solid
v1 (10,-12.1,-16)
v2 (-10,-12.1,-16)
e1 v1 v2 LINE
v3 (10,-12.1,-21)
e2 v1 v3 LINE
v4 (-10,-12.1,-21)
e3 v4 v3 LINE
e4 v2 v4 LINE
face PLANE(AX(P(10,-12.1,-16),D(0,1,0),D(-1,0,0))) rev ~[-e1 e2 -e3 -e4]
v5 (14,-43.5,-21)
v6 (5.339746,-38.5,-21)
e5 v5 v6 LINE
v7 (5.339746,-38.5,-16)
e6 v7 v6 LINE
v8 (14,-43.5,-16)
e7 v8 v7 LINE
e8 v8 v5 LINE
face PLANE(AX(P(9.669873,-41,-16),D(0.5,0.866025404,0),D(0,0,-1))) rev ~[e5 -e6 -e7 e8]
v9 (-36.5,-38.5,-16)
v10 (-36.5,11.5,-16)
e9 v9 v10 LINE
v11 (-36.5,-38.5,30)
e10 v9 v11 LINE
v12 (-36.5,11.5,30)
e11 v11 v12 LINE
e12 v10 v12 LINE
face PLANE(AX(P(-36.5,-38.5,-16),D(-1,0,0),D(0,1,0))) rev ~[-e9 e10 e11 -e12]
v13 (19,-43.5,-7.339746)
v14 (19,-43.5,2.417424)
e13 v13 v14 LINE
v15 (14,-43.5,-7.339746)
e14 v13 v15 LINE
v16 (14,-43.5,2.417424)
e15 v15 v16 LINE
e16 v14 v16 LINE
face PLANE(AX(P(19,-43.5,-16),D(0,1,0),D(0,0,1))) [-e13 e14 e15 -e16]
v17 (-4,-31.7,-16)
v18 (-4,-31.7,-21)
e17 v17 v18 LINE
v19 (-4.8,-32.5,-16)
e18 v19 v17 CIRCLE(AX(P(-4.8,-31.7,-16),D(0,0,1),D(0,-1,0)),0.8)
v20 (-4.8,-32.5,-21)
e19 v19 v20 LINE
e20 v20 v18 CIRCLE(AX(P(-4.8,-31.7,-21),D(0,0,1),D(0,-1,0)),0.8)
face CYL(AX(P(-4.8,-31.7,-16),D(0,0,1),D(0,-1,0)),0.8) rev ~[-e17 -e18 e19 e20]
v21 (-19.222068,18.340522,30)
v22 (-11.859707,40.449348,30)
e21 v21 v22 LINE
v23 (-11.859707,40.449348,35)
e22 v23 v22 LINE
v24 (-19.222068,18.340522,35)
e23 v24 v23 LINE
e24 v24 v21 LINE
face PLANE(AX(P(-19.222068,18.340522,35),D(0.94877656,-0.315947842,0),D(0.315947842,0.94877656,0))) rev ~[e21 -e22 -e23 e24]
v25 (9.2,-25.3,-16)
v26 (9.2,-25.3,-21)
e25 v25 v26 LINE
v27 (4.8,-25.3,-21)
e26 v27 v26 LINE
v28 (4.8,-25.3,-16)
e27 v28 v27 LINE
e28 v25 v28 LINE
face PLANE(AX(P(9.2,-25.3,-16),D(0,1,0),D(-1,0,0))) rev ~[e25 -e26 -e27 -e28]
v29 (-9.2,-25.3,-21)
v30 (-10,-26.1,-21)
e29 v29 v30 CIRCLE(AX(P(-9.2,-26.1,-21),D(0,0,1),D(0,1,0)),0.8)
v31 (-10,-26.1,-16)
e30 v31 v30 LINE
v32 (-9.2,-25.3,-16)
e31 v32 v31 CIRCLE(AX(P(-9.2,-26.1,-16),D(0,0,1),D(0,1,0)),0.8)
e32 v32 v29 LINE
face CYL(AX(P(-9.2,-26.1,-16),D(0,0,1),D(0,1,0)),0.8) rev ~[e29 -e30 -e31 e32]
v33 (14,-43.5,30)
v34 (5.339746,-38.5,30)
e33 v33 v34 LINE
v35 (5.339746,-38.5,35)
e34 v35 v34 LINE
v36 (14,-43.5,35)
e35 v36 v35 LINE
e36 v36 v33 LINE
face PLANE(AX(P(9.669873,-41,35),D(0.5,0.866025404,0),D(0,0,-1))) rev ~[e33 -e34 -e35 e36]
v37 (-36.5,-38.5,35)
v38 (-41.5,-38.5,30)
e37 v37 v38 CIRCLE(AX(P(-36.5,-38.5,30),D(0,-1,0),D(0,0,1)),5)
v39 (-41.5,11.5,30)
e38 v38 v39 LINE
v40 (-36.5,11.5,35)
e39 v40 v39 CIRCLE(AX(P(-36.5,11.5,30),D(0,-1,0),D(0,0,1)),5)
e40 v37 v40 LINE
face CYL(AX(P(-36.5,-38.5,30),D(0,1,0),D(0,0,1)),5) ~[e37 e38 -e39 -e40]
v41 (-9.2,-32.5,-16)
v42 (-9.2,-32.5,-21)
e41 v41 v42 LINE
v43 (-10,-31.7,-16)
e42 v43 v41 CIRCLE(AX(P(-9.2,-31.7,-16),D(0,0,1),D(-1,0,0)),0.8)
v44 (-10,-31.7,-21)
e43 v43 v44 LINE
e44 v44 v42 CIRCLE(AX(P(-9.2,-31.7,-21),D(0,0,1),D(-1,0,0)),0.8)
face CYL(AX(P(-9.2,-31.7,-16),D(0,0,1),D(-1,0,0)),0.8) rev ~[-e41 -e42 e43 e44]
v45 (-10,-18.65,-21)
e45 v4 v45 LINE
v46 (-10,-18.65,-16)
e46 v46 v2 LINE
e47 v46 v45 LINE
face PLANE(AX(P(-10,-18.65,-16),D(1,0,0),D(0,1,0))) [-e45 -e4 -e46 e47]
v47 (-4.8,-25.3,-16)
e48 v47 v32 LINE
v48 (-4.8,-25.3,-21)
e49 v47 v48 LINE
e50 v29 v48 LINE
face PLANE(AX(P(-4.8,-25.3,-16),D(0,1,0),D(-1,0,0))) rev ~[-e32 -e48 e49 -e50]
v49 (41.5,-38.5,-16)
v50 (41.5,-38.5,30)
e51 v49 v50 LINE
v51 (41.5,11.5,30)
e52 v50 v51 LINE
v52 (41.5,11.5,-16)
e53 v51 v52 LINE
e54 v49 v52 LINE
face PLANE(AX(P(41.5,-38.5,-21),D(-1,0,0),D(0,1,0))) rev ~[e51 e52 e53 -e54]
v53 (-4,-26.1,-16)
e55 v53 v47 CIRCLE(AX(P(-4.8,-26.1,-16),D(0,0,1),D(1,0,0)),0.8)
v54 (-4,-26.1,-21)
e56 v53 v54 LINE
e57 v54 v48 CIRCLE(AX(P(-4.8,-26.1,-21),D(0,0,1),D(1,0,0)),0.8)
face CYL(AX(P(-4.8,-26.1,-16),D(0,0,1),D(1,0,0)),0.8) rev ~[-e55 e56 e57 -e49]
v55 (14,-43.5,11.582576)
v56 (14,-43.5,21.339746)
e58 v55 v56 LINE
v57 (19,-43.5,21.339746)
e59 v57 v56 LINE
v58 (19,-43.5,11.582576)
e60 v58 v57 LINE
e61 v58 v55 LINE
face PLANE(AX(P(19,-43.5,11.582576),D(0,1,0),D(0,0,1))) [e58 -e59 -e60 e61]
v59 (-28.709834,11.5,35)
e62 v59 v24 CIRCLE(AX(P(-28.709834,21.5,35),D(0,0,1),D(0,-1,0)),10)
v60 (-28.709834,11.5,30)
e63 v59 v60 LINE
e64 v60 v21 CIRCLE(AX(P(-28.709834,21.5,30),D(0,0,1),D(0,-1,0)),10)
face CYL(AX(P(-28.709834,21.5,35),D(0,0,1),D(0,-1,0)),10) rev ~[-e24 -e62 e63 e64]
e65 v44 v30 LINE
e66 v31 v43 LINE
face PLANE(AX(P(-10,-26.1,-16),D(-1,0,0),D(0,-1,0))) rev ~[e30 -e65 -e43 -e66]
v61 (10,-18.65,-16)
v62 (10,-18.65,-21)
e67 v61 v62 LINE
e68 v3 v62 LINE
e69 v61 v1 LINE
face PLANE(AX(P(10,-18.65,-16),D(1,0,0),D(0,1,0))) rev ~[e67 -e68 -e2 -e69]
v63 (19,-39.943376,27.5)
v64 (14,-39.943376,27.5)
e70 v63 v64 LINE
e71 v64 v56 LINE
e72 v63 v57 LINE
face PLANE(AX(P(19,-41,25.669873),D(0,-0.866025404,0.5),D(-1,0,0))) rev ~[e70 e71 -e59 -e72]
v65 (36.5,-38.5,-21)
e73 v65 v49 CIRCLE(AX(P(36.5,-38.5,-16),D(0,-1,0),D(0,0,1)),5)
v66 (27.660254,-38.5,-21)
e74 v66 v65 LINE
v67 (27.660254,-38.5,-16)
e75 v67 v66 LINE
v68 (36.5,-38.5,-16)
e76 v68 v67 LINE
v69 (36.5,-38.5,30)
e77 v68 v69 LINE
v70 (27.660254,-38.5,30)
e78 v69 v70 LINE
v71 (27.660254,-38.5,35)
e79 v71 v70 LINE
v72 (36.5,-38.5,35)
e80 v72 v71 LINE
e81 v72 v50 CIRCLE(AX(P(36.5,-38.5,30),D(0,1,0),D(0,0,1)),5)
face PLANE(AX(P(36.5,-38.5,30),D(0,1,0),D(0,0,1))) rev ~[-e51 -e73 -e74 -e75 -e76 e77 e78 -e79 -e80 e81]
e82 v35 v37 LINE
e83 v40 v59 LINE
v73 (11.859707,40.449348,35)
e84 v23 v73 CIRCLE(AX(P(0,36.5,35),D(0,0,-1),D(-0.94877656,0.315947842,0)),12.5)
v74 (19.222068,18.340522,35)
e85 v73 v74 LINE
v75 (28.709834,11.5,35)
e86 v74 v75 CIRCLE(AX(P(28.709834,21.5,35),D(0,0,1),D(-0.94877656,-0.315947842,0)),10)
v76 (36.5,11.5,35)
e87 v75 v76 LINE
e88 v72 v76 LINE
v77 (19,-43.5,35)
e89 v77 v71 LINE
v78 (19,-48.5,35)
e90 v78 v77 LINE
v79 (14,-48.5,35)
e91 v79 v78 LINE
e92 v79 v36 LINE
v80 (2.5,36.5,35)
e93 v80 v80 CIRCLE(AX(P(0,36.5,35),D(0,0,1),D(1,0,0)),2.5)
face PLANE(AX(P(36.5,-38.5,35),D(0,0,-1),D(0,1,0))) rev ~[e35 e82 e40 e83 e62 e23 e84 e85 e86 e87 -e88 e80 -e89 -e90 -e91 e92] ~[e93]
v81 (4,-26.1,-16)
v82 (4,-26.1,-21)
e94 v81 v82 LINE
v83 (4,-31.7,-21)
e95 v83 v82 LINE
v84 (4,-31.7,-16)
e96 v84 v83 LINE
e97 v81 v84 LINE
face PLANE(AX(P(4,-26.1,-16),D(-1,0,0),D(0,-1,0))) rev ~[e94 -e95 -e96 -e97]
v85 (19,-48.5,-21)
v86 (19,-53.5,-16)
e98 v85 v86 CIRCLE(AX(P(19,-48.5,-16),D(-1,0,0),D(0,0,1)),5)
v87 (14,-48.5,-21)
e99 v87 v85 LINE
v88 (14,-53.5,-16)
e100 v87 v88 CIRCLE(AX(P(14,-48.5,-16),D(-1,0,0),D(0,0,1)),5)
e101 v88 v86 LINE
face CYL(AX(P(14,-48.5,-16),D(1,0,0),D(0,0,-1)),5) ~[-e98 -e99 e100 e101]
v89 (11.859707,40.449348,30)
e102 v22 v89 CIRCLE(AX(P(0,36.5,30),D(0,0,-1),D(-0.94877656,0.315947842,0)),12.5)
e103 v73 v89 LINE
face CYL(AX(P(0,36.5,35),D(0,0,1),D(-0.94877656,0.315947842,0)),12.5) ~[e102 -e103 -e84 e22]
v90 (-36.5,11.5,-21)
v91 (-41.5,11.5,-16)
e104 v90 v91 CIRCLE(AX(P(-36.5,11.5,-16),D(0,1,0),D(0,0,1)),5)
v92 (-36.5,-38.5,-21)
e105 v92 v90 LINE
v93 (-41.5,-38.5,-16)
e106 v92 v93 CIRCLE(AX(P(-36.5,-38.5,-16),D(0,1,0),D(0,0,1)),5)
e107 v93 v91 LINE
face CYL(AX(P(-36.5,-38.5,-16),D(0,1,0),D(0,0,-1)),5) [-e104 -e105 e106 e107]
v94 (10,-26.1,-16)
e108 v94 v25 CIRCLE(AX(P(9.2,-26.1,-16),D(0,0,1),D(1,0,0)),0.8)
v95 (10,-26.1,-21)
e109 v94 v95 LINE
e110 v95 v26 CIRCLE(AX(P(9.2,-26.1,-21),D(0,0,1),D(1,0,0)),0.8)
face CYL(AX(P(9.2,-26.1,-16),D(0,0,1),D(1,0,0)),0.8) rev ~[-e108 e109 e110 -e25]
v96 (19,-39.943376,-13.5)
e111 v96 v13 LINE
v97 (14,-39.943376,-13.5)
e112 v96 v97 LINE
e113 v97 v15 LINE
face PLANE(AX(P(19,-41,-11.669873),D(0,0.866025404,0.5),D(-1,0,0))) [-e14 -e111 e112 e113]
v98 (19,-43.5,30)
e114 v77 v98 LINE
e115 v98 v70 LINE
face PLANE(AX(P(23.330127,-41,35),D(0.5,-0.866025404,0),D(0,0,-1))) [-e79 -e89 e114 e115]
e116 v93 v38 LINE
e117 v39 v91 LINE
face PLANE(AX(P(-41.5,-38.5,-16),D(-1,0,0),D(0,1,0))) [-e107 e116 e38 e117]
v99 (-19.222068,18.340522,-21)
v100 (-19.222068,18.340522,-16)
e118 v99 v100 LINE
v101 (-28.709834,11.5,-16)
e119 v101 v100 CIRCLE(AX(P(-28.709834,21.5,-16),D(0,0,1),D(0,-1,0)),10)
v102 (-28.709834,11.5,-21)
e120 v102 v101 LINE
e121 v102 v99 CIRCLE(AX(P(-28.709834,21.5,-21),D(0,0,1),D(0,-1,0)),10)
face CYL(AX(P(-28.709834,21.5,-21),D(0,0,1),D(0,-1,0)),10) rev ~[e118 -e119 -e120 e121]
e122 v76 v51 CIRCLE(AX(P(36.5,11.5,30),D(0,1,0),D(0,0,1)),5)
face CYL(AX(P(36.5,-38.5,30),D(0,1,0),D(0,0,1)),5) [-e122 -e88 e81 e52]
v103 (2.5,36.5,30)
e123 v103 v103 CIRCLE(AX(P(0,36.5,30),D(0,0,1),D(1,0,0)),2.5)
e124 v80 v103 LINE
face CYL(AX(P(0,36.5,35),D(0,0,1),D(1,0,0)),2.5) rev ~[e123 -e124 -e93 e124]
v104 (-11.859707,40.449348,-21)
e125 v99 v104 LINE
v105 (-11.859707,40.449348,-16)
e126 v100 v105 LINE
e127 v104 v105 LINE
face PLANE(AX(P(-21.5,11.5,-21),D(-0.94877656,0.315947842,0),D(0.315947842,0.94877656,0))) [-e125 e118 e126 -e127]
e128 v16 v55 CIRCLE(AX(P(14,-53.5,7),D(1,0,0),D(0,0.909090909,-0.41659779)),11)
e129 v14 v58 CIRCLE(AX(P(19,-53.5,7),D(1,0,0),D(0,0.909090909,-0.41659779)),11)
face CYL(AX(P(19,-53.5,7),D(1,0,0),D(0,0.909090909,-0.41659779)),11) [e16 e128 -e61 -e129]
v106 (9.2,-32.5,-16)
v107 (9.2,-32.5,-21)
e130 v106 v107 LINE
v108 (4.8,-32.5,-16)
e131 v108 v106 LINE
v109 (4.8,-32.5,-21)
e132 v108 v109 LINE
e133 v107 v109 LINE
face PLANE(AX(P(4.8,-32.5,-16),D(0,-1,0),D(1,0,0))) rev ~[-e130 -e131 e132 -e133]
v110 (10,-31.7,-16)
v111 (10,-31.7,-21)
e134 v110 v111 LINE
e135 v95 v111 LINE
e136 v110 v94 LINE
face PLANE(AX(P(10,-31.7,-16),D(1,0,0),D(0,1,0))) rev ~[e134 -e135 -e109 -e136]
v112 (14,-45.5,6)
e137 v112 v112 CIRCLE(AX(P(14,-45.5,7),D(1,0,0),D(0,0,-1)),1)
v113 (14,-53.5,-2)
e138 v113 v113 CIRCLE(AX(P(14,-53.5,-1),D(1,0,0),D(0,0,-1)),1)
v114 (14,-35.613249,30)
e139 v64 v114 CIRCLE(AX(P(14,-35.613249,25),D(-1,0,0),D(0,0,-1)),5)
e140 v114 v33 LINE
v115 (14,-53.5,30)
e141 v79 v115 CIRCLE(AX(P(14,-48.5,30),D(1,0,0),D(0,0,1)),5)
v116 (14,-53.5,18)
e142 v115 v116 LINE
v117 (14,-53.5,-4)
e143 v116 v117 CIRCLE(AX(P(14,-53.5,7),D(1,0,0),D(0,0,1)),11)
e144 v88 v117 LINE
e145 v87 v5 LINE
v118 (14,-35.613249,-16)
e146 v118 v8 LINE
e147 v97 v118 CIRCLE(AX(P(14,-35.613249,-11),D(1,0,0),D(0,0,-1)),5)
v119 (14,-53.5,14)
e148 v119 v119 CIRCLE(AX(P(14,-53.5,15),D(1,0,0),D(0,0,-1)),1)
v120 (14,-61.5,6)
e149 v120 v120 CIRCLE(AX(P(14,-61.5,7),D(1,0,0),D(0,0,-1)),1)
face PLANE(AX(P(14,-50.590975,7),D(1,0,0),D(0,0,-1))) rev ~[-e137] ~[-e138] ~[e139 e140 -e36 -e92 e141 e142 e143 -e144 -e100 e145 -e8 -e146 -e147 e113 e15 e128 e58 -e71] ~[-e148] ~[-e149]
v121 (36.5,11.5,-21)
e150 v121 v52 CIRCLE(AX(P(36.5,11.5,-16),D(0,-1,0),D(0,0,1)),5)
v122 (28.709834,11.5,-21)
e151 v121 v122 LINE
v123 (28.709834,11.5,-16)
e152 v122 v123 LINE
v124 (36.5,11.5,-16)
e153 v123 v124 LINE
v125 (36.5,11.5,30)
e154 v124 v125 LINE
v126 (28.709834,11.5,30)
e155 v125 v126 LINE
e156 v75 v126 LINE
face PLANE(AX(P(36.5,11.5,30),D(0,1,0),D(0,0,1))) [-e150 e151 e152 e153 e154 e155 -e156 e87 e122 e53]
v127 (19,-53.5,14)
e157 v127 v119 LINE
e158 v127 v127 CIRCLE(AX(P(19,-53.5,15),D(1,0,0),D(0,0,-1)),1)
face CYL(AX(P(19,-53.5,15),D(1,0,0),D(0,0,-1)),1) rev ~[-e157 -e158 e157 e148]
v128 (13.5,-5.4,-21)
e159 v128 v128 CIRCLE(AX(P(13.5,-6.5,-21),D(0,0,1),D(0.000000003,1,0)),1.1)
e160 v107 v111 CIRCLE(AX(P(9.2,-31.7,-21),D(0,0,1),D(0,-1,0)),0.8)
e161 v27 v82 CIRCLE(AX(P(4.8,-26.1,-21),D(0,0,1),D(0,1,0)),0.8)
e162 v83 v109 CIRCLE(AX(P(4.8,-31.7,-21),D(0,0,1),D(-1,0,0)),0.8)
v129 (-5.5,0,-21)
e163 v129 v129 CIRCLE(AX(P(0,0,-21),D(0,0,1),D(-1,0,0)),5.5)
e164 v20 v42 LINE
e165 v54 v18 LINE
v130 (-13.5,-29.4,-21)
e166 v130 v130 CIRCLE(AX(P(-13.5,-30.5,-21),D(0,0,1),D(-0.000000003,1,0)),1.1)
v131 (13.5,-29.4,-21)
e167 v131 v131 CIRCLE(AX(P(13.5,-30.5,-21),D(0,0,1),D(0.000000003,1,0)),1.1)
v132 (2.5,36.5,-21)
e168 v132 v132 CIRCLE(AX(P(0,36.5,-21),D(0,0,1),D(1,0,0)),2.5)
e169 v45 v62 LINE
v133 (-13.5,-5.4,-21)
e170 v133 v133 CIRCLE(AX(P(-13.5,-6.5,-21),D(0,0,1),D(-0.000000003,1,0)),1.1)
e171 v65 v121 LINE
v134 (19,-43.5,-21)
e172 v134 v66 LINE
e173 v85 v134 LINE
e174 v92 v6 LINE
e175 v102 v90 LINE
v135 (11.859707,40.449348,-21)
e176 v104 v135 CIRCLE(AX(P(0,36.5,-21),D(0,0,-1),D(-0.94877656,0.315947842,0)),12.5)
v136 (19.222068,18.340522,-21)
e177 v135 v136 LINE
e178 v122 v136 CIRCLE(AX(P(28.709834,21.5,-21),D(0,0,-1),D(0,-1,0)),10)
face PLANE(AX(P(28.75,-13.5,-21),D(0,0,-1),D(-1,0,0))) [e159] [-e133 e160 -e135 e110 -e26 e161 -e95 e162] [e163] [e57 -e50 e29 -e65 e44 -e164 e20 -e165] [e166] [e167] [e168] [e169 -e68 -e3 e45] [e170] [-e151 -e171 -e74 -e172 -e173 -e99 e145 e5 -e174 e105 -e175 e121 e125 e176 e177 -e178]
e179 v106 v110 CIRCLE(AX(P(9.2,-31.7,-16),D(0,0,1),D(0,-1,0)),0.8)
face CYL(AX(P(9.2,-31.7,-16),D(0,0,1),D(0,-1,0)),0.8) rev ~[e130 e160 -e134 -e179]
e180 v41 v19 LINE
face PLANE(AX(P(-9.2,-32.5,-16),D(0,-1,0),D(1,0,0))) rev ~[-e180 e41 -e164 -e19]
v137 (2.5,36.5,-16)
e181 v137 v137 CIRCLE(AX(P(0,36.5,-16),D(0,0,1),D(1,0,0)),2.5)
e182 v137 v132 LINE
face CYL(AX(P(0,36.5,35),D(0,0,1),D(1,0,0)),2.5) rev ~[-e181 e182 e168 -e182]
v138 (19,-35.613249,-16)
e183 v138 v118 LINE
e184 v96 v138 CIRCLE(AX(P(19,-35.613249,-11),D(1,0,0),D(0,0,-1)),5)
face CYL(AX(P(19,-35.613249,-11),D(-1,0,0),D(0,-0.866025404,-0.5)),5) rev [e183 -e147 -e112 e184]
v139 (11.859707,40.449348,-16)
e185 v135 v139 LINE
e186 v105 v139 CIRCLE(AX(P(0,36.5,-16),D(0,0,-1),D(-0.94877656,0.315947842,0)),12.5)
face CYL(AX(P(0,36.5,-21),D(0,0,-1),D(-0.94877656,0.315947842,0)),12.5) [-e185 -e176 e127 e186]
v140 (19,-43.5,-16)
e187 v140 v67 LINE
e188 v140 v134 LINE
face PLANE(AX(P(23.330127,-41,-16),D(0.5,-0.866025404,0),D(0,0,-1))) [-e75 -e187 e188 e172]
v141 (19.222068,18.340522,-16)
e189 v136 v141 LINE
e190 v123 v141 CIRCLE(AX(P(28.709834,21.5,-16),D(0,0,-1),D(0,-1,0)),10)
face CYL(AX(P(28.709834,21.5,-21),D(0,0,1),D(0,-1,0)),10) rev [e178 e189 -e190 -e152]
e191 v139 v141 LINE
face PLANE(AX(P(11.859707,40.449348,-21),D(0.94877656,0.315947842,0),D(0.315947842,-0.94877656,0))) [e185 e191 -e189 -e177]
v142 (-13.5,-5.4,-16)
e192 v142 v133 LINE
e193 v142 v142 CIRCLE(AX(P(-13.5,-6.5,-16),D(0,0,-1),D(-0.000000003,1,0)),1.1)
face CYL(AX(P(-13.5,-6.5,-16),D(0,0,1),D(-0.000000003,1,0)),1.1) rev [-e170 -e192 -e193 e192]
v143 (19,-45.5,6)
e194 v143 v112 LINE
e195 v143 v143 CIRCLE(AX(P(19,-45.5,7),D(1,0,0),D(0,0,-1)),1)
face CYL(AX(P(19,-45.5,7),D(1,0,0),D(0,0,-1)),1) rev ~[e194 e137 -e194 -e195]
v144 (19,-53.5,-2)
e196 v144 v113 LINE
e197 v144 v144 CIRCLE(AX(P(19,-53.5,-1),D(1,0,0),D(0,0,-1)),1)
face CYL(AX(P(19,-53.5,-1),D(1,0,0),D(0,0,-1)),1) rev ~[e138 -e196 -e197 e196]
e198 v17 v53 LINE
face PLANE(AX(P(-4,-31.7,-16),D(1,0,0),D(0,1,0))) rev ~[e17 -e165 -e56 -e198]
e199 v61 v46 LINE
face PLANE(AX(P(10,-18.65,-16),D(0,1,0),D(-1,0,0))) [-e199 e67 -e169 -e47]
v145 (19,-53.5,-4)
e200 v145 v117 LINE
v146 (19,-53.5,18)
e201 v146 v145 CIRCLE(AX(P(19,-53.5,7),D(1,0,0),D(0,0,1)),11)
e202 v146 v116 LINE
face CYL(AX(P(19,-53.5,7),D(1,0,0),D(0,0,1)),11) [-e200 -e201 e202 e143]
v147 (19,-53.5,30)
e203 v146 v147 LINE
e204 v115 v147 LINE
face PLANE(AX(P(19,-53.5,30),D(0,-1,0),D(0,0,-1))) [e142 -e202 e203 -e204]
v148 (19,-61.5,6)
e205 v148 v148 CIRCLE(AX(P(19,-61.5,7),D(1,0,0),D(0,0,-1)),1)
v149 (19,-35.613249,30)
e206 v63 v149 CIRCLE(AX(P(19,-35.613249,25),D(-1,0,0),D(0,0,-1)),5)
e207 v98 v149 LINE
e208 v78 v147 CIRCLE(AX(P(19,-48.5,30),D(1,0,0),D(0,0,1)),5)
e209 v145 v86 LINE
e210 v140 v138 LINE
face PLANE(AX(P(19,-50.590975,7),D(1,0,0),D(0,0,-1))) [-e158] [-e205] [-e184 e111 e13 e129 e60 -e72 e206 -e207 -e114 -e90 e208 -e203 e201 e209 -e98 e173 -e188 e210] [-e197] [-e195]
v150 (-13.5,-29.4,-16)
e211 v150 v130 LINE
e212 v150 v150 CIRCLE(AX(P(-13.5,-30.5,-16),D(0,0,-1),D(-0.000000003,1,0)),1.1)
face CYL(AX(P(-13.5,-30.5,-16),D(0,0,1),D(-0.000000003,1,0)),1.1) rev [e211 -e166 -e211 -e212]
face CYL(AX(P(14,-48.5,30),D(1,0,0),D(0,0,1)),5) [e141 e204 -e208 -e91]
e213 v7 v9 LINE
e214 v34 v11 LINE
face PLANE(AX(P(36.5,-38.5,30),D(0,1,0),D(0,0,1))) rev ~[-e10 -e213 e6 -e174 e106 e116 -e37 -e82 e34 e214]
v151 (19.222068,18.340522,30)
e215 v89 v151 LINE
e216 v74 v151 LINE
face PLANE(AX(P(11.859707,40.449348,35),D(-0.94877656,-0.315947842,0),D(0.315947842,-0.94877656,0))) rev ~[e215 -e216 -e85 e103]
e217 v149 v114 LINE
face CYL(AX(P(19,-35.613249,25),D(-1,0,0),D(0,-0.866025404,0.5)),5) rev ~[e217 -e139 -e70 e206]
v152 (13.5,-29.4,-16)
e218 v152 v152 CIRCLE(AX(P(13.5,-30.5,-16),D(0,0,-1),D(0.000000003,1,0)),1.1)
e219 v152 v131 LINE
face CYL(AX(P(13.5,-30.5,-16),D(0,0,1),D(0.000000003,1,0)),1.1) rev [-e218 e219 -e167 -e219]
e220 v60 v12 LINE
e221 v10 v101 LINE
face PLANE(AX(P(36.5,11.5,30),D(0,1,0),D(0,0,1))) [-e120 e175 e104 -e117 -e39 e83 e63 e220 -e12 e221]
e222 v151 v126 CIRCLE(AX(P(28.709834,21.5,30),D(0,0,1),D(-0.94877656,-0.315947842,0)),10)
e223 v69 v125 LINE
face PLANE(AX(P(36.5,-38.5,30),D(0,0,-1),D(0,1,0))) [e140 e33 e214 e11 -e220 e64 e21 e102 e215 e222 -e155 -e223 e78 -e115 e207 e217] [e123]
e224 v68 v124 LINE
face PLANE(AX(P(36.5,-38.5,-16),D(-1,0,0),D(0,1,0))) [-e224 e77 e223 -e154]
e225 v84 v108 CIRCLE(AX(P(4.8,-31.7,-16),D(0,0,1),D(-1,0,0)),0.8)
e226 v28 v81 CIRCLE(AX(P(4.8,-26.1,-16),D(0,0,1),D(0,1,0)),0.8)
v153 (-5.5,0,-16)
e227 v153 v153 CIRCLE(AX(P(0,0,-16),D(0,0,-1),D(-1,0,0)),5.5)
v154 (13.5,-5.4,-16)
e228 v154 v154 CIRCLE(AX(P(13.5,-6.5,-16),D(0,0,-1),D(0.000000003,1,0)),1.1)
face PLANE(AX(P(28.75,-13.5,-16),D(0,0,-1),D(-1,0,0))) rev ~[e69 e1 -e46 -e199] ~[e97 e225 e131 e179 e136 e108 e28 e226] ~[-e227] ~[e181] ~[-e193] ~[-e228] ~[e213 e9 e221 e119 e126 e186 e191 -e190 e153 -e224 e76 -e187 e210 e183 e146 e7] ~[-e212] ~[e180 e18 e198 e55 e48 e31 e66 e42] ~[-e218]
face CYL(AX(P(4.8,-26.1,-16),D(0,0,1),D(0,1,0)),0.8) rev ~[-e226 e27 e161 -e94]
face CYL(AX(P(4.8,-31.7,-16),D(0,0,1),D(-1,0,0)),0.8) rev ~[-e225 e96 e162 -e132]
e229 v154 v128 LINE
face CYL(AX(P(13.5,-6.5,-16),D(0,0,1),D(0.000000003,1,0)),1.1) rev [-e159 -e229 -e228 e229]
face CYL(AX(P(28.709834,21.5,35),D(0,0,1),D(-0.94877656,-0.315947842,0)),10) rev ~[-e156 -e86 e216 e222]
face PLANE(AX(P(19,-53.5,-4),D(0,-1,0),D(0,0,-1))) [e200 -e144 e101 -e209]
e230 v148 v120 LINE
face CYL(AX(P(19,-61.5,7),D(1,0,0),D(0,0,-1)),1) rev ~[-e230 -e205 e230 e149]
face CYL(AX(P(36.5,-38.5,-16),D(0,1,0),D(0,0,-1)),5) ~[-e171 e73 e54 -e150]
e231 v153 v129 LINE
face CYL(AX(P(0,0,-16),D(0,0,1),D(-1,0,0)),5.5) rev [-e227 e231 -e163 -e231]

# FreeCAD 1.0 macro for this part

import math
import FreeCAD as App
import Part
import Sketcher
from FreeCAD import Vector
Q = App.Units.Quantity


def edges_at(feature, points):
    """Names of the edges that pass closest to the given points."""
    edges = feature.Shape.Edges
    near = lambda p: min(range(len(edges)), key=lambda i: edges[i].distToShape(Part.Vertex(*p))[0])
    return sorted({f"Edge{near(p) + 1}" for p in points})

doc = App.newDocument("Part")
body = doc.addObject("PartDesign::Body", "Body")

# Sketch on XY plane
sketch1 = doc.addObject("Sketcher::SketchObject", "Sketch")
body.addObject(sketch1)
sketch1.AttachmentSupport = (doc.XY_Plane, [""])
sketch1.MapMode = "FlatFace"
sketch1.AttachmentOffset = App.Placement(Vector(0, 0, -16), App.Rotation())
sketch1.addGeometry([
    Part.LineSegment(Vector(16, 12, 0), Vector(16, -38, 0)),
    Part.LineSegment(Vector(16, -38, 0), Vector(-16, -38, 0)),
    Part.LineSegment(Vector(-16, -38, 0), Vector(-16, 12, 0)),
    Part.LineSegment(Vector(-16, 12, 0), Vector(16, 12, 0)),
], False)
sketch1.addConstraint([
    Sketcher.Constraint("Coincident", 0, 2, 1, 1),
    Sketcher.Constraint("Coincident", 1, 2, 2, 1),
    Sketcher.Constraint("Coincident", 2, 2, 3, 1),
    Sketcher.Constraint("Coincident", 3, 2, 0, 1),
    Sketcher.Constraint("Vertical", 0),
    Sketcher.Constraint("Horizontal", 1),
    Sketcher.Constraint("Vertical", 2),
    Sketcher.Constraint("Horizontal", 3),
    Sketcher.Constraint("DistanceX", 1, 2, 1, 1, Q("32 mm")),
    Sketcher.Constraint("DistanceY", 0, 2, 0, 1, Q("50 mm")),
    Sketcher.Constraint("DistanceX", -1, 1, 0, 2, Q("16 mm")),
    Sketcher.Constraint("DistanceY", 0, 2, -1, 1, Q("38.5 mm")),
])
pad1 = doc.addObject("PartDesign::Pad", "Pad")
body.addObject(pad1)
pad1.Profile = sketch1
pad1.Length = 5
pad1.Reversed = True

# Sketch on XY plane
sketch2 = doc.addObject("Sketcher::SketchObject", "Sketch001")
body.addObject(sketch2)
sketch2.AttachmentSupport = (doc.XY_Plane, [""])
sketch2.MapMode = "FlatFace"
sketch2.AttachmentOffset = App.Placement(Vector(0, 0, -16), App.Rotation())
sketch2.addGeometry([
    Part.LineSegment(Vector(-4.8, -32.5, 0), Vector(-9.2, -32.5, 0)),  # 0
    Part.ArcOfCircle(Part.Circle(Vector(-9.2, -31.7, 0), Vector(0, 0, 1), 0.8), math.radians(180), math.radians(270)),  # 1
    Part.LineSegment(Vector(-10, -31.7, 0), Vector(-10, -26.1, 0)),  # 2
    Part.ArcOfCircle(Part.Circle(Vector(-9.2, -26.1, 0), Vector(0, 0, 1), 0.8), math.radians(90), math.radians(180)),  # 3
    Part.LineSegment(Vector(-9.2, -25.3, 0), Vector(-4.8, -25.3, 0)),  # 4
    Part.ArcOfCircle(Part.Circle(Vector(-4.8, -26.1, 0), Vector(0, 0, 1), 0.8), math.radians(0), math.radians(90)),  # 5
    Part.LineSegment(Vector(-4, -26.1, 0), Vector(-4, -31.7, 0)),  # 6
    Part.ArcOfCircle(Part.Circle(Vector(-4.8, -31.7, 0), Vector(0, 0, 1), 0.8), math.radians(-90), math.radians(0)),  # 7
    Part.LineSegment(Vector(10, -26.1, 0), Vector(10, -31.7, 0)),  # 8
    Part.ArcOfCircle(Part.Circle(Vector(9.2, -31.7, 0), Vector(0, 0, 1), 0.8), math.radians(-90), math.radians(0)),  # 9
    Part.LineSegment(Vector(9.2, -32.5, 0), Vector(4.8, -32.5, 0)),  # 10
    Part.ArcOfCircle(Part.Circle(Vector(4.8, -31.7, 0), Vector(0, 0, 1), 0.8), math.radians(180), math.radians(270)),  # 11
    Part.LineSegment(Vector(4, -31.7, 0), Vector(4, -26.1, 0)),  # 12
    Part.ArcOfCircle(Part.Circle(Vector(4.8, -26.1, 0), Vector(0, 0, 1), 0.8), math.radians(90), math.radians(180)),  # 13
    Part.LineSegment(Vector(4.8, -25.3, 0), Vector(9.2, -25.3, 0)),  # 14
    Part.ArcOfCircle(Part.Circle(Vector(9.2, -26.1, 0), Vector(0, 0, 1), 0.8), math.radians(0), math.radians(90)),  # 15
    Part.LineSegment(Vector(10, -12.1, 0), Vector(10, -18.6, 0)),  # 16
    Part.LineSegment(Vector(10, -18.6, 0), Vector(-10, -18.6, 0)),  # 17
    Part.LineSegment(Vector(-10, -18.6, 0), Vector(-10, -12.1, 0)),  # 18
    Part.LineSegment(Vector(-10, -12.1, 0), Vector(10, -12.1, 0)),  # 19
    Part.Circle(Vector(0, 0, 0), Vector(0, 0, 1), 5.5),  # 20
    Part.Circle(Vector(-13.5, -6.5, 0), Vector(0, 0, 1), 1.1),  # 21
    Part.Circle(Vector(-13.5, -30.5, 0), Vector(0, 0, 1), 1.1),  # 22
    Part.Circle(Vector(13.5, -30.5, 0), Vector(0, 0, 1), 1.1),  # 23
    Part.Circle(Vector(13.5, -6.5, 0), Vector(0, 0, 1), 1.1),  # 24
], False)
sketch2.addConstraint([
    Sketcher.Constraint("Tangent", 0, 2, 1, 2),
    Sketcher.Constraint("Tangent", 1, 1, 2, 1),
    Sketcher.Constraint("Tangent", 2, 2, 3, 2),
    Sketcher.Constraint("Tangent", 3, 1, 4, 1),
    Sketcher.Constraint("Tangent", 4, 2, 5, 2),
    Sketcher.Constraint("Tangent", 5, 1, 6, 1),
    Sketcher.Constraint("Tangent", 6, 2, 7, 2),
    Sketcher.Constraint("Tangent", 7, 1, 0, 1),
    Sketcher.Constraint("Tangent", 8, 2, 9, 2),
    Sketcher.Constraint("Tangent", 9, 1, 10, 1),
    Sketcher.Constraint("Tangent", 10, 2, 11, 2),
    Sketcher.Constraint("Tangent", 11, 1, 12, 1),
    Sketcher.Constraint("Tangent", 12, 2, 13, 2),
    Sketcher.Constraint("Tangent", 13, 1, 14, 1),
    Sketcher.Constraint("Tangent", 14, 2, 15, 2),
    Sketcher.Constraint("Tangent", 15, 1, 8, 1),
    Sketcher.Constraint("Coincident", 16, 2, 17, 1),
    Sketcher.Constraint("Coincident", 17, 2, 18, 1),
    Sketcher.Constraint("Coincident", 18, 2, 19, 1),
    Sketcher.Constraint("Coincident", 19, 2, 16, 1),
    Sketcher.Constraint("Horizontal", 0),
    Sketcher.Constraint("Vertical", 2),
    Sketcher.Constraint("Horizontal", 4),
    Sketcher.Constraint("Vertical", 6),
    Sketcher.Constraint("Vertical", 8),
    Sketcher.Constraint("Horizontal", 10),
    Sketcher.Constraint("Vertical", 12),
    Sketcher.Constraint("Horizontal", 14),
    Sketcher.Constraint("Vertical", 16),
    Sketcher.Constraint("Horizontal", 17),
    Sketcher.Constraint("Vertical", 18),
    Sketcher.Constraint("Horizontal", 19),
    Sketcher.Constraint("Coincident", 20, 3, -1, 1),
    Sketcher.Constraint("Equal", 1, 3),
    Sketcher.Constraint("Equal", 3, 5),
    Sketcher.Constraint("Equal", 5, 7),
    Sketcher.Constraint("Equal", 7, 9),
    Sketcher.Constraint("Equal", 9, 11),
    Sketcher.Constraint("Equal", 11, 13),
    Sketcher.Constraint("Equal", 13, 15),
    Sketcher.Constraint("Equal", 21, 22),
    Sketcher.Constraint("Equal", 22, 23),
    Sketcher.Constraint("Equal", 23, 24),
    Sketcher.Constraint("Symmetric", 1, 3, 9, 3, -2),
    Sketcher.Constraint("Symmetric", 5, 3, 13, 3, -2),
    Sketcher.Constraint("Symmetric", 22, 3, 23, 3, -2),
    Sketcher.Constraint("Symmetric", 21, 3, 24, 3, -2),
    Sketcher.Constraint("Vertical", 21, 3, 22, 3),
    Sketcher.Constraint("Vertical", 15, 1, 16, 2),
    Sketcher.Constraint("Vertical", 2, 2, 17, 2),
    Sketcher.Constraint("Diameter", 20, Q("11 mm")),
    Sketcher.Constraint("Diameter", 21, Q("2.2 mm")),
    Sketcher.Constraint("Radius", 1, Q("0.8 mm")),
    Sketcher.Constraint("DistanceX", 17, 2, 17, 1, Q("20 mm")),
    Sketcher.Constraint("DistanceX", 0, 2, 0, 1, Q("4.4 mm")),
    Sketcher.Constraint("DistanceY", 2, 1, 2, 2, Q("5.6 mm")),
    Sketcher.Constraint("DistanceY", 23, 3, 24, 3, Q("24 mm")),
    Sketcher.Constraint("DistanceY", 0, 2, 22, 3, Q("2 mm")),
    Sketcher.Constraint("DistanceY", 2, 2, 18, 2, Q("14 mm")),
    Sketcher.Constraint("DistanceY", 16, 2, 16, 1, Q("6.55 mm")),
    Sketcher.Constraint("DistanceY", 1, 3, -1, 1, Q("31.7 mm")),
    Sketcher.Constraint("DistanceX", 21, 3, -1, 1, Q("13.5 mm")),
])
pocket1 = doc.addObject("PartDesign::Pocket", "Pocket")
body.addObject(pocket1)
pocket1.Profile = sketch2
pocket1.Length = 10

# Sketch on XY plane
sketch3 = doc.addObject("Sketcher::SketchObject", "Sketch002")
body.addObject(sketch3)
sketch3.AttachmentSupport = (doc.XY_Plane, [""])
sketch3.MapMode = "FlatFace"
sketch3.AttachmentOffset = App.Placement(Vector(0, 0, -21), App.Rotation())
sketch3.addGeometry([
    Part.LineSegment(Vector(42, 12, 0), Vector(42, -38, 0)),  # 0
    Part.LineSegment(Vector(42, -38, 0), Vector(16, -38, 0)),  # 1
    Part.LineSegment(Vector(16, -38, 0), Vector(16, 12, 0)),  # 2
    Part.LineSegment(Vector(16, 12, 0), Vector(42, 12, 0)),  # 3
    Part.LineSegment(Vector(-16, 12, 0), Vector(-16, -38, 0)),  # 4
    Part.LineSegment(Vector(-16, -38, 0), Vector(-42, -38, 0)),  # 5
    Part.LineSegment(Vector(-42, -38, 0), Vector(-42, 12, 0)),  # 6
    Part.LineSegment(Vector(-42, 12, 0), Vector(-16, 12, 0)),  # 7
], False)
sketch3.addConstraint([
    Sketcher.Constraint("Coincident", 0, 2, 1, 1),
    Sketcher.Constraint("Coincident", 1, 2, 2, 1),
    Sketcher.Constraint("Coincident", 2, 2, 3, 1),
    Sketcher.Constraint("Coincident", 3, 2, 0, 1),
    Sketcher.Constraint("Coincident", 4, 2, 5, 1),
    Sketcher.Constraint("Coincident", 5, 2, 6, 1),
    Sketcher.Constraint("Coincident", 6, 2, 7, 1),
    Sketcher.Constraint("Coincident", 7, 2, 4, 1),
    Sketcher.Constraint("Vertical", 0),
    Sketcher.Constraint("Horizontal", 1),
    Sketcher.Constraint("Vertical", 2),
    Sketcher.Constraint("Horizontal", 3),
    Sketcher.Constraint("Vertical", 4),
    Sketcher.Constraint("Horizontal", 5),
    Sketcher.Constraint("Vertical", 6),
    Sketcher.Constraint("Horizontal", 7),
    Sketcher.Constraint("Symmetric", 1, 2, 4, 2, -2),
    Sketcher.Constraint("Symmetric", 3, 2, 6, 2, -2),
    Sketcher.Constraint("DistanceY", 0, 2, 0, 1, Q("50 mm")),
    Sketcher.Constraint("DistanceX", 1, 2, 1, 1, Q("25.5 mm")),
    Sketcher.Constraint("DistanceX", -1, 1, 1, 2, Q("16 mm")),
    Sketcher.Constraint("DistanceY", 0, 2, -1, 1, Q("38.5 mm")),
])
pad2 = doc.addObject("PartDesign::Pad", "Pad001")
body.addObject(pad2)
pad2.Profile = sketch3
pad2.Length = 5

# Sketch on XY plane
sketch4 = doc.addObject("Sketcher::SketchObject", "Sketch003")
body.addObject(sketch4)
sketch4.AttachmentSupport = (doc.XY_Plane, [""])
sketch4.MapMode = "FlatFace"
sketch4.AttachmentOffset = App.Placement(Vector(0, 0, -16), App.Rotation())
sketch4.addGeometry([
    Part.LineSegment(Vector(-42, 12, 0), Vector(-42, -38, 0)),  # 0
    Part.LineSegment(Vector(-42, -38, 0), Vector(-36, -38, 0)),  # 1
    Part.LineSegment(Vector(-36, -38, 0), Vector(-36, 12, 0)),  # 2
    Part.LineSegment(Vector(-36, 12, 0), Vector(-42, 12, 0)),  # 3
    Part.LineSegment(Vector(36, 12, 0), Vector(36, -38, 0)),  # 4
    Part.LineSegment(Vector(36, -38, 0), Vector(42, -38, 0)),  # 5
    Part.LineSegment(Vector(42, -38, 0), Vector(42, 12, 0)),  # 6
    Part.LineSegment(Vector(42, 12, 0), Vector(36, 12, 0)),  # 7
], False)
sketch4.addConstraint([
    Sketcher.Constraint("Coincident", 0, 2, 1, 1),
    Sketcher.Constraint("Coincident", 1, 2, 2, 1),
    Sketcher.Constraint("Coincident", 2, 2, 3, 1),
    Sketcher.Constraint("Coincident", 3, 2, 0, 1),
    Sketcher.Constraint("Coincident", 4, 2, 5, 1),
    Sketcher.Constraint("Coincident", 5, 2, 6, 1),
    Sketcher.Constraint("Coincident", 6, 2, 7, 1),
    Sketcher.Constraint("Coincident", 7, 2, 4, 1),
    Sketcher.Constraint("Vertical", 0),
    Sketcher.Constraint("Horizontal", 1),
    Sketcher.Constraint("Vertical", 2),
    Sketcher.Constraint("Horizontal", 3),
    Sketcher.Constraint("Vertical", 4),
    Sketcher.Constraint("Horizontal", 5),
    Sketcher.Constraint("Vertical", 6),
    Sketcher.Constraint("Horizontal", 7),
    Sketcher.Constraint("Symmetric", 1, 2, 4, 2, -2),
    Sketcher.Constraint("Symmetric", 3, 2, 6, 2, -2),
    Sketcher.Constraint("DistanceX", 1, 1, 1, 2, Q("5 mm")),
    Sketcher.Constraint("DistanceY", 0, 2, 0, 1, Q("50 mm")),
    Sketcher.Constraint("DistanceX", 1, 2, 4, 2, Q("73 mm")),
    Sketcher.Constraint("DistanceY", 0, 2, -1, 1, Q("38.5 mm")),
])
pad3 = doc.addObject("PartDesign::Pad", "Pad002")
body.addObject(pad3)
pad3.Profile = sketch4
pad3.Length = 51

# Sketch on YZ plane
sketch5 = doc.addObject("Sketcher::SketchObject", "Sketch004")
body.addObject(sketch5)
sketch5.AttachmentSupport = (doc.YZ_Plane, [""])
sketch5.MapMode = "FlatFace"
sketch5.AttachmentOffset = App.Placement(Vector(0, 0, 36.5), App.Rotation())
sketch5.addGeometry([
    Part.LineSegment(Vector(12, 30, 0), Vector(-38, 30, 0)),
    Part.LineSegment(Vector(-38, 30, 0), Vector(-38, 35, 0)),
    Part.LineSegment(Vector(-38, 35, 0), Vector(12, 35, 0)),
    Part.LineSegment(Vector(12, 35, 0), Vector(12, 30, 0)),
], False)
sketch5.addConstraint([
    Sketcher.Constraint("Coincident", 0, 2, 1, 1),
    Sketcher.Constraint("Coincident", 1, 2, 2, 1),
    Sketcher.Constraint("Coincident", 2, 2, 3, 1),
    Sketcher.Constraint("Coincident", 3, 2, 0, 1),
    Sketcher.Constraint("Horizontal", 0),
    Sketcher.Constraint("Vertical", 1),
    Sketcher.Constraint("Horizontal", 2),
    Sketcher.Constraint("Vertical", 3),
    Sketcher.Constraint("DistanceX", 0, 2, 0, 1, Q("50 mm")),
    Sketcher.Constraint("DistanceY", 1, 1, 1, 2, Q("5 mm")),
    Sketcher.Constraint("DistanceY", -1, 1, 0, 2, Q("30 mm")),
    Sketcher.Constraint("DistanceX", 0, 2, -1, 1, Q("38.5 mm")),
])
pad4 = doc.addObject("PartDesign::Pad", "Pad003")
body.addObject(pad4)
pad4.Profile = sketch5
pad4.Type = "UpToFirst"
pad4.Reversed = True

# Sketch on XY plane
sketch6 = doc.addObject("Sketcher::SketchObject", "Sketch005")
body.addObject(sketch6)
sketch6.AttachmentSupport = (doc.XY_Plane, [""])
sketch6.MapMode = "FlatFace"
sketch6.AttachmentOffset = App.Placement(Vector(0, 0, -21), App.Rotation())
sketch6.addGeometry([
    Part.LineSegment(Vector(12, 40, 0), Vector(22, 12, 0)),
    Part.LineSegment(Vector(22, 12, 0), Vector(-22, 12, 0)),
    Part.LineSegment(Vector(-22, 12, 0), Vector(-12, 40, 0)),
    Part.ArcOfCircle(Part.Circle(Vector(0, 36, 0), Vector(0, 0, 1), 12), math.radians(18), math.radians(162)),
], False)
sketch6.addConstraint([
    Sketcher.Constraint("Coincident", 0, 2, 1, 1),
    Sketcher.Constraint("Coincident", 1, 2, 2, 1),
    Sketcher.Constraint("Tangent", 2, 2, 3, 2),
    Sketcher.Constraint("Tangent", 3, 1, 0, 1),
    Sketcher.Constraint("Horizontal", 1),
    Sketcher.Constraint("Symmetric", 2, 2, 3, 1, -2),
    Sketcher.Constraint("Radius", 3, Q("12.5 mm")),
    Sketcher.Constraint("DistanceX", 1, 2, 1, 1, Q("43 mm")),
    Sketcher.Constraint("DistanceY", 0, 2, 3, 3, Q("25 mm")),
    Sketcher.Constraint("DistanceY", -1, 1, 3, 3, Q("36.5 mm")),
])
pad5 = doc.addObject("PartDesign::Pad", "Pad004")
body.addObject(pad5)
pad5.Profile = sketch6
pad5.Length = 5
doc.recompute()

fillet = doc.addObject("PartDesign::Fillet", "Fillet")
body.addObject(fillet)
fillet.Base = (pad5, edges_at(pad5, [(-21.5, 11.5, -18.5), (21.5, 11.5, -18.5)]))
fillet.Radius = 10

# Sketch on XY plane
sketch7 = doc.addObject("Sketcher::SketchObject", "Sketch006")
body.addObject(sketch7)
sketch7.AttachmentSupport = (doc.XY_Plane, [""])
sketch7.MapMode = "FlatFace"
sketch7.AttachmentOffset = App.Placement(Vector(0, 0, 35), App.Rotation())
sketch7.addGeometry([
    Part.LineSegment(Vector(19, 18, 0), Vector(12, 40, 0)),  # 0
    Part.ArcOfCircle(Part.Circle(Vector(0, 36, 0), Vector(0, 0, 1), 12), math.radians(18), math.radians(162)),  # 1
    Part.LineSegment(Vector(-12, 40, 0), Vector(-19, 18, 0)),  # 2
    Part.ArcOfCircle(Part.Circle(Vector(-29, 22, 0), Vector(0, 0, 1), 10), math.radians(-90), math.radians(-18)),  # 3
    Part.LineSegment(Vector(-29, 12, 0), Vector(29, 12, 0)),  # 4
    Part.ArcOfCircle(Part.Circle(Vector(29, 22, 0), Vector(0, 0, 1), 10), math.radians(-162), math.radians(-90)),  # 5
], False)
sketch7.addConstraint([
    Sketcher.Constraint("Tangent", 0, 2, 1, 1),
    Sketcher.Constraint("Tangent", 1, 2, 2, 1),
    Sketcher.Constraint("Tangent", 2, 2, 3, 2),
    Sketcher.Constraint("Tangent", 3, 1, 4, 1),
    Sketcher.Constraint("Tangent", 4, 2, 5, 2),
    Sketcher.Constraint("Tangent", 5, 1, 0, 1),
    Sketcher.Constraint("Horizontal", 4),
    Sketcher.Constraint("Equal", 3, 5),
    Sketcher.Constraint("Symmetric", 0, 2, 1, 2, -2),
    Sketcher.Constraint("Radius", 3, Q("10 mm")),
    Sketcher.Constraint("Radius", 1, Q("12.5 mm")),
    Sketcher.Constraint("DistanceY", 3, 3, 1, 3, Q("15 mm")),
    Sketcher.Constraint("DistanceY", -1, 1, 1, 3, Q("36.5 mm")),
    Sketcher.Constraint("DistanceX", 4, 1, 4, 2, Q("57.419668 mm")),
])
pad6 = doc.addObject("PartDesign::Pad", "Pad005")
body.addObject(pad6)
pad6.Profile = sketch7
pad6.Length = 5
pad6.Reversed = True

# Sketch on YZ plane
sketch8 = doc.addObject("Sketcher::SketchObject", "Sketch007")
body.addObject(sketch8)
sketch8.AttachmentSupport = (doc.YZ_Plane, [""])
sketch8.MapMode = "FlatFace"
sketch8.AttachmentOffset = App.Placement(Vector(0, 0, 16.5), App.Rotation())
sketch8.addGeometry([
    Part.LineSegment(Vector(-38, 35, 0), Vector(-54, 35, 0)),  # 0
    Part.LineSegment(Vector(-54, 35, 0), Vector(-54, 30, 0)),  # 1
    Part.LineSegment(Vector(-54, 30, 0), Vector(-38, 30, 0)),  # 2
    Part.LineSegment(Vector(-38, 30, 0), Vector(-38, 35, 0)),  # 3
    Part.LineSegment(Vector(-38, -16, 0), Vector(-54, -16, 0)),  # 4
    Part.LineSegment(Vector(-54, -16, 0), Vector(-54, -21, 0)),  # 5
    Part.LineSegment(Vector(-54, -21, 0), Vector(-38, -21, 0)),  # 6
    Part.LineSegment(Vector(-38, -21, 0), Vector(-38, -16, 0)),  # 7
], False)
sketch8.addConstraint([
    Sketcher.Constraint("Coincident", 0, 2, 1, 1),
    Sketcher.Constraint("Coincident", 1, 2, 2, 1),
    Sketcher.Constraint("Coincident", 2, 2, 3, 1),
    Sketcher.Constraint("Coincident", 3, 2, 0, 1),
    Sketcher.Constraint("Coincident", 4, 2, 5, 1),
    Sketcher.Constraint("Coincident", 5, 2, 6, 1),
    Sketcher.Constraint("Coincident", 6, 2, 7, 1),
    Sketcher.Constraint("Coincident", 7, 2, 4, 1),
    Sketcher.Constraint("Horizontal", 0),
    Sketcher.Constraint("Vertical", 1),
    Sketcher.Constraint("Horizontal", 2),
    Sketcher.Constraint("Vertical", 3),
    Sketcher.Constraint("Horizontal", 4),
    Sketcher.Constraint("Vertical", 5),
    Sketcher.Constraint("Horizontal", 6),
    Sketcher.Constraint("Vertical", 7),
    Sketcher.Constraint("Vertical", 1, 2, 4, 2),
    Sketcher.Constraint("Vertical", 3, 2, 6, 2),
    Sketcher.Constraint("Equal", 3, 5),
    Sketcher.Constraint("DistanceX", 0, 2, 0, 1, Q("15 mm")),
    Sketcher.Constraint("DistanceY", 1, 2, 1, 1, Q("5 mm")),
    Sketcher.Constraint("DistanceY", -1, 1, 0, 2, Q("35 mm")),
    Sketcher.Constraint("DistanceY", 4, 2, -1, 1, Q("16 mm")),
    Sketcher.Constraint("DistanceX", 0, 2, -1, 1, Q("53.5 mm")),
])
pad7 = doc.addObject("PartDesign::Pad", "Pad006")
body.addObject(pad7)
pad7.Profile = sketch8
pad7.Length = 5
pad7.Midplane = True

# Sketch on YZ plane
sketch9 = doc.addObject("Sketcher::SketchObject", "Sketch008")
body.addObject(sketch9)
sketch9.AttachmentSupport = (doc.YZ_Plane, [""])
sketch9.MapMode = "FlatFace"
sketch9.AttachmentOffset = App.Placement(Vector(0, 0, 19), App.Rotation())
sketch9.addGeometry([
    Part.LineSegment(Vector(-54, 30, 0), Vector(-54, 18, 0)),  # 0
    Part.ArcOfCircle(Part.Circle(Vector(-54, 7, 0), Vector(0, 0, 1), 11), math.radians(90), math.radians(270)),  # 1
    Part.LineSegment(Vector(-54, -4, 0), Vector(-54, -16, 0)),  # 2
    Part.LineSegment(Vector(-54, -16, 0), Vector(-44, -16, 0)),  # 3
    Part.LineSegment(Vector(-44, -16, 0), Vector(-44, 2, 0)),  # 4
    Part.ArcOfCircle(Part.Circle(Vector(-54, 7, 0), Vector(0, 0, 1), 11), math.radians(-25), math.radians(25)),  # 5
    Part.LineSegment(Vector(-44, 12, 0), Vector(-44, 30, 0)),  # 6
    Part.LineSegment(Vector(-44, 30, 0), Vector(-54, 30, 0)),  # 7
], False)
sketch9.addConstraint([
    Sketcher.Constraint("Coincident", 0, 2, 1, 1),
    Sketcher.Constraint("Coincident", 1, 2, 2, 1),
    Sketcher.Constraint("Coincident", 2, 2, 3, 1),
    Sketcher.Constraint("Coincident", 3, 2, 4, 1),
    Sketcher.Constraint("Coincident", 4, 2, 5, 1),
    Sketcher.Constraint("Coincident", 5, 2, 6, 1),
    Sketcher.Constraint("Coincident", 6, 2, 7, 1),
    Sketcher.Constraint("Coincident", 7, 2, 0, 1),
    Sketcher.Constraint("Vertical", 0),
    Sketcher.Constraint("Vertical", 2),
    Sketcher.Constraint("Horizontal", 3),
    Sketcher.Constraint("Vertical", 4),
    Sketcher.Constraint("Vertical", 6),
    Sketcher.Constraint("Horizontal", 7),
    Sketcher.Constraint("Coincident", 5, 3, 1, 3),
    Sketcher.Constraint("Equal", 1, 5),
    Sketcher.Constraint("Vertical", 5, 3, 0, 2),
    Sketcher.Constraint("Vertical", 0, 2, 1, 2),
    Sketcher.Constraint("Vertical", 4, 2, 5, 2),
    Sketcher.Constraint("Equal", 0, 2),
    Sketcher.Constraint("Radius", 1, Q("11 mm")),
    Sketcher.Constraint("DistanceX", 3, 1, 3, 2, Q("10 mm")),
    Sketcher.Constraint("DistanceY", 0, 2, 0, 1, Q("12 mm")),
    Sketcher.Constraint("DistanceY", -1, 1, 1, 3, Q("7 mm")),
    Sketcher.Constraint("DistanceX", 1, 3, -1, 1, Q("53.5 mm")),
])
pad8 = doc.addObject("PartDesign::Pad", "Pad007")
body.addObject(pad8)
pad8.Profile = sketch9
pad8.Length = 5
pad8.Reversed = True

# Sketch on YZ plane
sketch10 = doc.addObject("Sketcher::SketchObject", "Sketch009")
body.addObject(sketch10)
sketch10.AttachmentSupport = (doc.YZ_Plane, [""])
sketch10.MapMode = "FlatFace"
sketch10.AttachmentOffset = App.Placement(Vector(0, 0, 19), App.Rotation())
sketch10.addGeometry([
    Part.Circle(Vector(-53.5, 15, 0), Vector(0, 0, 1), 1),
    Part.Circle(Vector(-45.5, 7, 0), Vector(0, 0, 1), 1),
    Part.Circle(Vector(-53.5, -1, 0), Vector(0, 0, 1), 1),
    Part.Circle(Vector(-61.5, 7, 0), Vector(0, 0, 1), 1),
], False)
sketch10.addConstraint([
    Sketcher.Constraint("Equal", 0, 1),
    Sketcher.Constraint("Equal", 1, 2),
    Sketcher.Constraint("Equal", 2, 3),
    Sketcher.Constraint("Horizontal", 1, 3, 3, 3),
    Sketcher.Constraint("Vertical", 0, 3, 2, 3),
    Sketcher.Constraint("Diameter", 0, Q("2 mm")),
    Sketcher.Constraint("DistanceY", -1, 1, 0, 3, Q("15 mm")),
    Sketcher.Constraint("DistanceY", -1, 1, 1, 3, Q("7 mm")),
    Sketcher.Constraint("DistanceY", 2, 3, -1, 1, Q("1 mm")),
    Sketcher.Constraint("DistanceX", 0, 3, 1, 3, Q("8 mm")),
    Sketcher.Constraint("DistanceX", 3, 3, 0, 3, Q("8 mm")),
    Sketcher.Constraint("DistanceX", 0, 3, -1, 1, Q("53.5 mm")),
])
pocket2 = doc.addObject("PartDesign::Pocket", "Pocket001")
body.addObject(pocket2)
pocket2.Profile = sketch10
pocket2.Length = 5
doc.recompute()

fillet2 = doc.addObject("PartDesign::Fillet", "Fillet001")
body.addObject(fillet2)
fillet2.Base = (pocket2, edges_at(pocket2, [
    (41.5, -13.5, -21),
    (-41.5, -13.5, -21),
    (-41.5, -13.5, 35),
    (41.5, -13.5, 35),
]))
fillet2.Radius = 5
doc.recompute()

fillet3 = doc.addObject("PartDesign::Fillet", "Fillet002")
body.addObject(fillet3)
fillet3.Base = (fillet2, edges_at(fillet2, [(16.5, -53.5, 35), (16.5, -53.5, -21)]))
fillet3.Radius = 5
doc.recompute()

chamfer = doc.addObject("PartDesign::Chamfer", "Chamfer")
body.addObject(chamfer)
chamfer.Base = (fillet3, edges_at(fillet3, [(16.5, -43.5, -16)]))
chamfer.ChamferType = "Two distances"
chamfer.Size = 5
chamfer.Size2 = 8.660254
doc.recompute()

chamfer2 = doc.addObject("PartDesign::Chamfer", "Chamfer001")
body.addObject(chamfer2)
chamfer2.Base = (chamfer, edges_at(chamfer, [(16.5, -43.5, 30)]))
chamfer2.ChamferType = "Two distances"
chamfer2.Size = 5
chamfer2.Size2 = 8.660254
chamfer2.FlipDirection = True
doc.recompute()

fillet4 = doc.addObject("PartDesign::Fillet", "Fillet003")
body.addObject(fillet4)
fillet4.Base = (chamfer2, edges_at(chamfer2, [(16.5, -38.5, -16), (16.5, -38.5, 30)]))
fillet4.Radius = 5
doc.recompute()

chamfer3 = doc.addObject("PartDesign::Chamfer", "Chamfer002")
body.addObject(chamfer3)
chamfer3.Base = (fillet4, edges_at(fillet4, [(14, -38.5, 32.5), (14, -38.5, -18.5)]))
chamfer3.ChamferType = "Two distances"
chamfer3.Size = 5
chamfer3.Size2 = 8.660254
doc.recompute()

chamfer4 = doc.addObject("PartDesign::Chamfer", "Chamfer003")
body.addObject(chamfer4)
chamfer4.Base = (chamfer3, edges_at(chamfer3, [(19, -38.5, 32.5), (19, -38.5, -18.5)]))
chamfer4.ChamferType = "Two distances"
chamfer4.Size = 5
chamfer4.Size2 = 8.660254

# Sketch on XY plane
sketch11 = doc.addObject("Sketcher::SketchObject", "Sketch010")
body.addObject(sketch11)
sketch11.AttachmentSupport = (doc.XY_Plane, [""])
sketch11.MapMode = "FlatFace"
sketch11.AttachmentOffset = App.Placement(Vector(0, 0, 35), App.Rotation())
sketch11.addGeometry(Part.Circle(Vector(0, 36.5, 0), Vector(0, 0, 1), 2.5), False)
sketch11.addConstraint([
    Sketcher.Constraint("PointOnObject", 0, 3, -2),
    Sketcher.Constraint("Diameter", 0, Q("5 mm")),
    Sketcher.Constraint("DistanceY", -1, 1, 0, 3, Q("36.5 mm")),
])
pocket3 = doc.addObject("PartDesign::Pocket", "Pocket002")
body.addObject(pocket3)
pocket3.Profile = sketch11
pocket3.Type = "ThroughAll"

doc.recompute()
